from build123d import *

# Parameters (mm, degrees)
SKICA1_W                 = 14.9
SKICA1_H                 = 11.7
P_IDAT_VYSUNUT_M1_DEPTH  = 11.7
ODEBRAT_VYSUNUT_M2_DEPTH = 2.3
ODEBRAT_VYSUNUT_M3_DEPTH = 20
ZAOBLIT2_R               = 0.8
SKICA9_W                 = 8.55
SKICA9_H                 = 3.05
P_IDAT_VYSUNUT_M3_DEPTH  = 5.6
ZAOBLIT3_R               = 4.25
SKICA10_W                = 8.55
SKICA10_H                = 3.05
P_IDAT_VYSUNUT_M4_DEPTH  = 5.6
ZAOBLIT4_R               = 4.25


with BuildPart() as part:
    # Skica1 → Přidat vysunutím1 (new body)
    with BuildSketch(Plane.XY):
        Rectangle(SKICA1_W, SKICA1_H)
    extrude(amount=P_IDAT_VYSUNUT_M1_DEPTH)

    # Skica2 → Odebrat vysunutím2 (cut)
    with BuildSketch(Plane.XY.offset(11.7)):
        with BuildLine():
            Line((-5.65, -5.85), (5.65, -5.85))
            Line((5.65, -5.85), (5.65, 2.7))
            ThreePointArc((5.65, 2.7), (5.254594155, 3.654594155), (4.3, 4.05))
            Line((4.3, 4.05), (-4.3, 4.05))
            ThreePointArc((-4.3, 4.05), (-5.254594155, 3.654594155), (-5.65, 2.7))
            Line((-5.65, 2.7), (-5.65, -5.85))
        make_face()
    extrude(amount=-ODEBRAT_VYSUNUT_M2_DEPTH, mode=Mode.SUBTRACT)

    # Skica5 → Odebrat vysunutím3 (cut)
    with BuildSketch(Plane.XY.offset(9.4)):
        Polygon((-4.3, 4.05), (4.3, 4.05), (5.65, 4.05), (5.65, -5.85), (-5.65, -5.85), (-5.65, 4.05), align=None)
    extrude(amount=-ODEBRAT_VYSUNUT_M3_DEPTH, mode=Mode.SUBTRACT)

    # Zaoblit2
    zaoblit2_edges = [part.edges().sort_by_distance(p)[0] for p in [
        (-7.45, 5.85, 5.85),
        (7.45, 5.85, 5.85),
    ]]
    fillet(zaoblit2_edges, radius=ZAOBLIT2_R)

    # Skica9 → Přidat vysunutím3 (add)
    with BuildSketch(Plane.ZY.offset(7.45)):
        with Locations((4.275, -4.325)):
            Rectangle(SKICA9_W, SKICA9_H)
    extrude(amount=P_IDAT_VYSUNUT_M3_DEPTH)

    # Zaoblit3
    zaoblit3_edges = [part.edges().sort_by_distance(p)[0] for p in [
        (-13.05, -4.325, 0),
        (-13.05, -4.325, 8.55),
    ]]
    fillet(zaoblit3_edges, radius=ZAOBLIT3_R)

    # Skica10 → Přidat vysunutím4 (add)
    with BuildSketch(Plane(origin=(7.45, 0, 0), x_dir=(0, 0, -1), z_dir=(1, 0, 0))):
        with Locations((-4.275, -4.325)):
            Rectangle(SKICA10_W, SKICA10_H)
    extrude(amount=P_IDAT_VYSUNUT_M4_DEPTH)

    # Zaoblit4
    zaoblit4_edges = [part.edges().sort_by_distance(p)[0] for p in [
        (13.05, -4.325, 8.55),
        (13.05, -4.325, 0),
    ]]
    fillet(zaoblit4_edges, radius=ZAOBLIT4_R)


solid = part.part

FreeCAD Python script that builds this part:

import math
import FreeCAD as App
import Part
import Sketcher

V = App.Vector


def edges_at(feature, points):
    """Names of the edges that pass closest to the given points."""
    edges = feature.Shape.Edges
    near = lambda p: min(range(len(edges)), key=lambda i: edges[i].distToShape(Part.Vertex(*p))[0])
    return sorted({f"Edge{near(p) + 1}" for p in points})


def add_polygon(sketch, points):
    """Adds a closed chain of lines whose ends are joined by coincident constraints."""
    first, n = sketch.GeometryCount, len(points)
    for a, b in zip(points, points[1:] + points[:1]):
        sketch.addGeometry(Part.LineSegment(App.Vector(*a, 0), App.Vector(*b, 0)), False)
    for i in range(n):
        sketch.addConstraint(Sketcher.Constraint("Coincident", first + i, 2, first + (i + 1) % n, 1))

doc = App.newDocument("Part")
body = doc.addObject("PartDesign::Body", "Body")

sketch1 = body.newObject("Sketcher::SketchObject", "Sketch")
sketch1.AttachmentSupport = (doc.getObject("XY_Plane"), [""])
sketch1.MapMode = "FlatFace"
add_polygon(sketch1, [(-7, 6), (-7, -6), (7, -6), (7, 6)])
sketch1.addConstraint([
    Sketcher.Constraint("Vertical", 0),
    Sketcher.Constraint("Horizontal", 1),
    Sketcher.Constraint("Vertical", 2),
    Sketcher.Constraint("Horizontal", 3),
    Sketcher.Constraint("Symmetric", 0, 2, 2, 2, -1, 1),
    Sketcher.Constraint("DistanceX", 1, 1, 1, 2, 14.9),
    Sketcher.Constraint("DistanceY", 0, 2, 0, 1, 11.7),
])
pad1 = body.newObject("PartDesign::Pad", "Pad")
pad1.Profile = sketch1
pad1.Length = 11.7

sketch2 = body.newObject("Sketcher::SketchObject", "Sketch001")
sketch2.AttachmentSupport = (doc.getObject("XY_Plane"), [""])
sketch2.MapMode = "FlatFace"
sketch2.AttachmentOffset = App.Placement(V(0, 0, 11.7), App.Rotation())
sketch2.addGeometry([
    Part.LineSegment(V(-5.7, -5.8, 0), V(5.7, -5.8, 0)),
    Part.LineSegment(V(5.7, -5.8, 0), V(5.7, 2.7, 0)),
    Part.ArcOfCircle(Part.Circle(V(4.3, 2.7, 0), V(0, 0, 1), 1.3), math.radians(0), math.radians(90)),
    Part.LineSegment(V(4.3, 4, 0), V(-4.3, 4, 0)),
    Part.ArcOfCircle(Part.Circle(V(-4.3, 2.7, 0), V(0, 0, 1), 1.3), math.radians(90), math.radians(180)),
    Part.LineSegment(V(-5.7, 2.7, 0), V(-5.7, -5.8, 0)),
], False)
sketch2.addConstraint([
    Sketcher.Constraint("Coincident", 0, 2, 1, 1),
    Sketcher.Constraint("Tangent", 1, 2, 2, 1),
    Sketcher.Constraint("Tangent", 2, 2, 3, 1),
    Sketcher.Constraint("Tangent", 3, 2, 4, 1),
    Sketcher.Constraint("Tangent", 4, 2, 5, 1),
    Sketcher.Constraint("Coincident", 5, 2, 0, 1),
    Sketcher.Constraint("Horizontal", 0),
    Sketcher.Constraint("Vertical", 1),
    Sketcher.Constraint("Horizontal", 3),
    Sketcher.Constraint("Vertical", 5),
    Sketcher.Constraint("Equal", 2, 4),
    Sketcher.Constraint("Radius", 2, 1.35),
    Sketcher.Constraint("DistanceX", 0, 1, 0, 2, 11.3),
    Sketcher.Constraint("DistanceY", 1, 1, 1, 2, 8.55),
    Sketcher.Constraint("DistanceX", -1, 1, 2, 3, 4.3),
    Sketcher.Constraint("DistanceY", -1, 1, 2, 3, 2.7),
])
pocket1 = body.newObject("PartDesign::Pocket", "Pocket")
pocket1.Profile = sketch2
pocket1.Length = 2.3

sketch3 = body.newObject("Sketcher::SketchObject", "Sketch002")
sketch3.AttachmentSupport = (doc.getObject("XY_Plane"), [""])
sketch3.MapMode = "FlatFace"
sketch3.AttachmentOffset = App.Placement(V(0, 0, 9.4), App.Rotation())
add_polygon(sketch3, [(6, 4), (-6, 4), (-6, -6), (6, -6)])
sketch3.addConstraint([
    Sketcher.Constraint("Horizontal", 0),
    Sketcher.Constraint("Vertical", 1),
    Sketcher.Constraint("Horizontal", 2),
    Sketcher.Constraint("Vertical", 3),
    Sketcher.Constraint("DistanceX", 0, 2, 0, 1, 11.3),
    Sketcher.Constraint("DistanceY", 1, 2, 1, 1, 9.9),
    Sketcher.Constraint("DistanceX", 0, 2, -1, 1, 5.65),
    Sketcher.Constraint("DistanceY", -1, 1, 0, 2, 4.05),
])
pocket2 = body.newObject("PartDesign::Pocket", "Pocket001")
pocket2.Profile = sketch3
pocket2.Length = 20
doc.recompute()

fillet = body.newObject("PartDesign::Fillet", "Fillet")
fillet.Base = (pocket2, edges_at(pocket2, [(-7.45, 5.85, 5.85), (7.45, 5.85, 5.85)]))
fillet.Radius = 0.8

sketch4 = body.newObject("Sketcher::SketchObject", "Sketch003")
sketch4.AttachmentSupport = (doc.getObject("YZ_Plane"), [""])
sketch4.MapMode = "FlatFace"
sketch4.AttachmentOffset = App.Placement(V(0, 0, -7.45), App.Rotation())
add_polygon(sketch4, [(-2.8, 0), (-5.8, 0), (-5.8, 8.6), (-2.8, 8.6)])
sketch4.addConstraint([
    Sketcher.Constraint("Horizontal", 0),
    Sketcher.Constraint("Vertical", 1),
    Sketcher.Constraint("Horizontal", 2),
    Sketcher.Constraint("Vertical", 3),
    Sketcher.Constraint("PointOnObject", 0, 2, -1),
    Sketcher.Constraint("DistanceX", 0, 2, 0, 1, 3.05),
    Sketcher.Constraint("DistanceY", 1, 1, 1, 2, 8.55),
    Sketcher.Constraint("DistanceX", 2, 2, -1, 1, 2.8),
])
pad2 = body.newObject("PartDesign::Pad", "Pad001")
pad2.Profile = sketch4
pad2.Length = 5.6
pad2.Reversed = True
doc.recompute()

fillet2 = body.newObject("PartDesign::Fillet", "Fillet001")
fillet2.Base = (pad2, edges_at(pad2, [(-13.05, -4.325, 0), (-13.05, -4.325, 8.55)]))
fillet2.Radius = 4.25

sketch5 = body.newObject("Sketcher::SketchObject", "Sketch004")
sketch5.AttachmentSupport = (doc.getObject("YZ_Plane"), [""])
sketch5.MapMode = "FlatFace"
sketch5.AttachmentOffset = App.Placement(V(0, 0, 7.45), App.Rotation())
add_polygon(sketch5, [(-2.8, 8.6), (-5.8, 8.6), (-5.8, 0), (-2.8, 0)])
sketch5.addConstraint([
    Sketcher.Constraint("Horizontal", 0),
    Sketcher.Constraint("Vertical", 1),
    Sketcher.Constraint("Horizontal", 2),
    Sketcher.Constraint("Vertical", 3),
    Sketcher.Constraint("PointOnObject", 1, 2, -1),
    Sketcher.Constraint("DistanceX", 0, 2, 0, 1, 3.05),
    Sketcher.Constraint("DistanceY", 1, 2, 1, 1, 8.55),
    Sketcher.Constraint("DistanceX", 2, 2, -1, 1, 2.8),
])
pad3 = body.newObject("PartDesign::Pad", "Pad002")
pad3.Profile = sketch5
pad3.Length = 5.6
doc.recompute()

fillet3 = body.newObject("PartDesign::Fillet", "Fillet002")
fillet3.Base = (pad3, edges_at(pad3, [(13.05, -4.325, 8.55), (13.05, -4.325, 0)]))
fillet3.Radius = 4.25

doc.recompute()
